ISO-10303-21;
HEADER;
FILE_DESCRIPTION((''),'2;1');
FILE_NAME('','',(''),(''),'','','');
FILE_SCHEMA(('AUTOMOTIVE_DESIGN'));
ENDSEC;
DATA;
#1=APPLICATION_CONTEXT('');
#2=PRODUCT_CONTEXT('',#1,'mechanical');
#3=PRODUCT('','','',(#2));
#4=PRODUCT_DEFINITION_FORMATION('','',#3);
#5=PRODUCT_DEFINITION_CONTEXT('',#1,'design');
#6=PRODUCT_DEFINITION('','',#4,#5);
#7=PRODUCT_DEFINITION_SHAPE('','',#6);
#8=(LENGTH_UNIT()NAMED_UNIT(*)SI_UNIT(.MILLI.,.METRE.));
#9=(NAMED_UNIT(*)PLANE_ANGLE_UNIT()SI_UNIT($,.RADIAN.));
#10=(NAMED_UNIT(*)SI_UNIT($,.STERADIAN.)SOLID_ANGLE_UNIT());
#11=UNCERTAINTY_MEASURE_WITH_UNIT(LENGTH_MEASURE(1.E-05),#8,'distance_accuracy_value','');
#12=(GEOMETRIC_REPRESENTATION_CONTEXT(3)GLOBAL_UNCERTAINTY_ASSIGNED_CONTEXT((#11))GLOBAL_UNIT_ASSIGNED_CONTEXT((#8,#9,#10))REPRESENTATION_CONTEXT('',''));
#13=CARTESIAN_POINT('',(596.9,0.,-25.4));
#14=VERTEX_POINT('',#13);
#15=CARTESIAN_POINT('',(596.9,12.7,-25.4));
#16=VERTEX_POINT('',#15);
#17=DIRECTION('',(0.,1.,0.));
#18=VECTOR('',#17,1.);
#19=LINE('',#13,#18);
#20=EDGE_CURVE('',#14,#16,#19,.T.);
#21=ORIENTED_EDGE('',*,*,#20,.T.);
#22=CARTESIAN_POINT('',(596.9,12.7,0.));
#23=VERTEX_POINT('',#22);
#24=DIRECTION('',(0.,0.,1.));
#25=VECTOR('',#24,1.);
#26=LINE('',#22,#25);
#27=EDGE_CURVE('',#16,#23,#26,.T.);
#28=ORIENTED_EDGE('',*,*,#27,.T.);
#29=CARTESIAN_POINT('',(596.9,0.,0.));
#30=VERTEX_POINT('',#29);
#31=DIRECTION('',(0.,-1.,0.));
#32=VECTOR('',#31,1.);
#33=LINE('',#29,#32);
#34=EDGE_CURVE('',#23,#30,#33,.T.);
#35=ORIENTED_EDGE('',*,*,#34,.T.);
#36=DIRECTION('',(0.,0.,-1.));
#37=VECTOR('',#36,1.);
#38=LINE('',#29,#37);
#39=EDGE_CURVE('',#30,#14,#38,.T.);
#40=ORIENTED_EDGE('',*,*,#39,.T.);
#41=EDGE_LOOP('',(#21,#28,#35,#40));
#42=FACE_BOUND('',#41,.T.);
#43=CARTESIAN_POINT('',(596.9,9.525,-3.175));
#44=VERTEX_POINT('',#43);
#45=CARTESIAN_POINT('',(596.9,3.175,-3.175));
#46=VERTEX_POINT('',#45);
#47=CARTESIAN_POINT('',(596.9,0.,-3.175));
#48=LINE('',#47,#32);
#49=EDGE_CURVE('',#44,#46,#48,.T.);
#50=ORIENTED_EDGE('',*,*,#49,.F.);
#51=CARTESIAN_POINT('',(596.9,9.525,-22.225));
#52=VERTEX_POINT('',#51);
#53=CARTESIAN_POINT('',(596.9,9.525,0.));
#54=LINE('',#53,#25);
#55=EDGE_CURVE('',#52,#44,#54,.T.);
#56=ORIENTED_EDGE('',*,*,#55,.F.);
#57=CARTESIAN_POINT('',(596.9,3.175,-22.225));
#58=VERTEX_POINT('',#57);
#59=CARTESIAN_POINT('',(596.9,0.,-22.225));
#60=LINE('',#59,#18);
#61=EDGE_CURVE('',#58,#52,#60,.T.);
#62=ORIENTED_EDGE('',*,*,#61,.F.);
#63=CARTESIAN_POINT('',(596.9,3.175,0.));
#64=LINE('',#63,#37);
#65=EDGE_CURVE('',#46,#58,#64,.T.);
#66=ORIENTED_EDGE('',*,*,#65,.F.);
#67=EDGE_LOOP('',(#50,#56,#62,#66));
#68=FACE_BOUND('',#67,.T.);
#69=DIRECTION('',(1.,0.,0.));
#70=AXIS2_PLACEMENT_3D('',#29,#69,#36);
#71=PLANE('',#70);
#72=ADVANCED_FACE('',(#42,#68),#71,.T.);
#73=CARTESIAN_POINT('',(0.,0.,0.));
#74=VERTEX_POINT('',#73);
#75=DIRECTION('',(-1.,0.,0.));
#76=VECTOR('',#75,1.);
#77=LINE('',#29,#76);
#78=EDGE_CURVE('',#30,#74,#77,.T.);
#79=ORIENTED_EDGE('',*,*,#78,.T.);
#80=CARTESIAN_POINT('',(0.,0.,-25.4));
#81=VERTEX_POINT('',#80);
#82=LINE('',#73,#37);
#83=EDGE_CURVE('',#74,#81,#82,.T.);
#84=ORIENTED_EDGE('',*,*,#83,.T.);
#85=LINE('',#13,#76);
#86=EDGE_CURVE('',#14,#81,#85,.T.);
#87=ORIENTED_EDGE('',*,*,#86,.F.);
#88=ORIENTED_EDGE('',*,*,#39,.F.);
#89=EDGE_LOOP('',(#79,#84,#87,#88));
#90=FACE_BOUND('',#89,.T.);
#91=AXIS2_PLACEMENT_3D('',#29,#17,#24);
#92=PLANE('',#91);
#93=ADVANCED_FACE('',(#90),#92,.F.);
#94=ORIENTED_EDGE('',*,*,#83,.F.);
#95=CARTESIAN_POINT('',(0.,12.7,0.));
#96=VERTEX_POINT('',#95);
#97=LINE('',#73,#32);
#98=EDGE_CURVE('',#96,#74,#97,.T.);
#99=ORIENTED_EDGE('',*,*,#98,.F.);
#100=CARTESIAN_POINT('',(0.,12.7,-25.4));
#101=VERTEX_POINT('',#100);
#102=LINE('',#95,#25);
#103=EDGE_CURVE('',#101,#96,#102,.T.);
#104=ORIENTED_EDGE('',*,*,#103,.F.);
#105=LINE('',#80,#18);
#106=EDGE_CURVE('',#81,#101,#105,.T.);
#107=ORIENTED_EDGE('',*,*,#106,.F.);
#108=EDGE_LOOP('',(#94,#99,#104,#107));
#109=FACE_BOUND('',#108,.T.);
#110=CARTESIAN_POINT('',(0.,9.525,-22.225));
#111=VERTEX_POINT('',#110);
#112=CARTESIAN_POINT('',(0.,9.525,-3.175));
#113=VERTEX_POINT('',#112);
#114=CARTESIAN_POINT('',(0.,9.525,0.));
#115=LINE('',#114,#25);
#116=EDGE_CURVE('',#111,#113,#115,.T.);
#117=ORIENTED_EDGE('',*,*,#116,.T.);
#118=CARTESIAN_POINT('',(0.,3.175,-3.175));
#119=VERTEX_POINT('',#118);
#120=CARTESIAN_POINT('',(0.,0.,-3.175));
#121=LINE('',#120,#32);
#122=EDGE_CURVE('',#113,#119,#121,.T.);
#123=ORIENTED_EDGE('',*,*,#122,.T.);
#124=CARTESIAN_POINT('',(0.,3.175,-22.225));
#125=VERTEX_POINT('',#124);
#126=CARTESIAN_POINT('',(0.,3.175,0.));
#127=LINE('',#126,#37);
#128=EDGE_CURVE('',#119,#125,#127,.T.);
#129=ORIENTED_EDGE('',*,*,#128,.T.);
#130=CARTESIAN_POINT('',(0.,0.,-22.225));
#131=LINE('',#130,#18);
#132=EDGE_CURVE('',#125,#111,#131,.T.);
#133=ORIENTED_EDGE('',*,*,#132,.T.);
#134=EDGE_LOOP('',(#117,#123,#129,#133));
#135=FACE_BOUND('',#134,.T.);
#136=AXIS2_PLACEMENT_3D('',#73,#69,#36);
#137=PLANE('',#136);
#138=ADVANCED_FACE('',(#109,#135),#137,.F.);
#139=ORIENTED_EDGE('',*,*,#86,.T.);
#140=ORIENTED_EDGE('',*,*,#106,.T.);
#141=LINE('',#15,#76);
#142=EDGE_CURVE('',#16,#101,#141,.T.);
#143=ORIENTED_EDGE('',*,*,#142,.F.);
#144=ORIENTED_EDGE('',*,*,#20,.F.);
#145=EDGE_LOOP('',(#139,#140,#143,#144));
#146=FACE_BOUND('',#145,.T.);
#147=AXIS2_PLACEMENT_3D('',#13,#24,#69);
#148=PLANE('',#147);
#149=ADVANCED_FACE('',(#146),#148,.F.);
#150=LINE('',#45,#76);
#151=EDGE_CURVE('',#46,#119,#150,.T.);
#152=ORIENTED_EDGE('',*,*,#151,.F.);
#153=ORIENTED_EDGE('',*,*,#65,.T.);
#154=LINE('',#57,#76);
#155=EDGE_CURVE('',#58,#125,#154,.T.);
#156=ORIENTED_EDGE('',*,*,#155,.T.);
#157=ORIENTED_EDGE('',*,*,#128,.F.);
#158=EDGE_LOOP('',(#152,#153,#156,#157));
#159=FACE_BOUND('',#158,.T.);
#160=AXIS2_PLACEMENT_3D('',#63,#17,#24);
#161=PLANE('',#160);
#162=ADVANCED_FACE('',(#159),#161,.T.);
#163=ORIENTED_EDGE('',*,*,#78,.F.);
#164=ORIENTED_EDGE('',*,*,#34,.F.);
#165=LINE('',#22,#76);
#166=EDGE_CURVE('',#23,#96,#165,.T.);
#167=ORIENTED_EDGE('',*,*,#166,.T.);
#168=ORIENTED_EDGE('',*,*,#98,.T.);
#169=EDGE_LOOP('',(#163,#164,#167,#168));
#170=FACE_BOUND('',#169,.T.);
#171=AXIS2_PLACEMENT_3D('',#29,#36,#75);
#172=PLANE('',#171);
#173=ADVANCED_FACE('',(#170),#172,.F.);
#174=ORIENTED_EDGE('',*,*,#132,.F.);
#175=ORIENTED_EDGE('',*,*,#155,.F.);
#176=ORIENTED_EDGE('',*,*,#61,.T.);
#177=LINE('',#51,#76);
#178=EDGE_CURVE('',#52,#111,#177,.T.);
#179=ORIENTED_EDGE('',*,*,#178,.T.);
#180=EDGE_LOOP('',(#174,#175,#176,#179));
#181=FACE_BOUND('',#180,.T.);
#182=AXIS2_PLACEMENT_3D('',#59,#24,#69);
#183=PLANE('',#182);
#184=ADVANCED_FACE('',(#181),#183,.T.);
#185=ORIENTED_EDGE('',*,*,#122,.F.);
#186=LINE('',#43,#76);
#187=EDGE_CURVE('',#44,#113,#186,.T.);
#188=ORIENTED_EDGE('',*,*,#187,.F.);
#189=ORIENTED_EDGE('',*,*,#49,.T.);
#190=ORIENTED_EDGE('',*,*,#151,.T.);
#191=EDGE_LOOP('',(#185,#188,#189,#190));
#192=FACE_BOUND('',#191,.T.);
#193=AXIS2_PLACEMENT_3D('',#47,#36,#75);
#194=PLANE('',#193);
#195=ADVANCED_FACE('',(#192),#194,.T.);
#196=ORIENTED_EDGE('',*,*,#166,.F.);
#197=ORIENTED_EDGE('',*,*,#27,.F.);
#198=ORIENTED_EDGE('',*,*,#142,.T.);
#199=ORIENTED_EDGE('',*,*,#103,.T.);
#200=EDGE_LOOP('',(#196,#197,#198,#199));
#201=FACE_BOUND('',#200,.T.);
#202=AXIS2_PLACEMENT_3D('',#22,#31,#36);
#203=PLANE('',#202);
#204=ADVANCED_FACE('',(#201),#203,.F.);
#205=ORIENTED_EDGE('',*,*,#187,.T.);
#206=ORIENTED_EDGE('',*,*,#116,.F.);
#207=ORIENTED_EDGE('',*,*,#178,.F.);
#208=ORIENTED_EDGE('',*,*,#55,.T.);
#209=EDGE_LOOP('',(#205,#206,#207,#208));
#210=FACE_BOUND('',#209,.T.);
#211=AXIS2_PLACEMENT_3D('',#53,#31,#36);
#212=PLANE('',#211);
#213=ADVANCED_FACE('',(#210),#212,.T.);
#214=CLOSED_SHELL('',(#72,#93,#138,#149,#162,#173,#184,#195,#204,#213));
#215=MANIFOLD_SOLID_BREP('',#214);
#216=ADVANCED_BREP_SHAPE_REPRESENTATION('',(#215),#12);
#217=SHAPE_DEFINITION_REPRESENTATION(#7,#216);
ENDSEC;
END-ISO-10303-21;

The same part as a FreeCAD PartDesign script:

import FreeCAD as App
import Part
import Sketcher
from FreeCAD import Vector
Q = App.Units.Quantity


def add_polygon(sketch, points):
    """Adds a closed chain of lines whose ends are joined by coincident constraints."""
    first, n = sketch.GeometryCount, len(points)
    for a, b in zip(points, points[1:] + points[:1]):
        sketch.addGeometry(Part.LineSegment(App.Vector(*a, 0), App.Vector(*b, 0)), False)
    for i in range(n):
        sketch.addConstraint(Sketcher.Constraint("Coincident", first + i, 2, first + (i + 1) % n, 1))

doc = App.newDocument("Part")
params = doc.addObject("Spreadsheet::Sheet", "Params")
for row, (alias, value) in enumerate([
    ("sketch1_height", "1 in"),
    ("sketch1_width", "0.5 in"),
    ("sketch1_width2", "0.25 in"),
    ("sketch1_height2", "0.75 in"),
    ("pad1_length", "23.5 in"),
], start=1):
    params.set(f"A{row}", alias)
    params.set(f"B{row}", "=" + value)
    params.setAlias(f"B{row}", alias)

body = doc.addObject("PartDesign::Body", "Body")

# Sketch on YZ plane
sketch1 = body.newObject("Sketcher::SketchObject", "Sketch")
sketch1.AttachmentSupport = (doc.getObject("YZ_Plane"), [""])
sketch1.MapMode = "FlatFace"
add_polygon(sketch1, [(13, 0), (0, 0), (0, -25), (13, -25)])  # lines 0-3
add_polygon(sketch1, [(3, -22), (3, -3), (10, -3), (10, -22)])  # lines 4-7
sketch1.addConstraint(Sketcher.Constraint("Horizontal", 0))
sketch1.addConstraint(Sketcher.Constraint("Vertical", 1))
sketch1.addConstraint(Sketcher.Constraint("Horizontal", 2))
sketch1.addConstraint(Sketcher.Constraint("Vertical", 3))
sketch1.addConstraint(Sketcher.Constraint("Vertical", 4))
sketch1.addConstraint(Sketcher.Constraint("Horizontal", 5))
sketch1.addConstraint(Sketcher.Constraint("Vertical", 6))
sketch1.addConstraint(Sketcher.Constraint("Horizontal", 7))
sketch1.addConstraint(Sketcher.Constraint("Coincident", 0, 2, -1, 1))
sketch1.addConstraint(Sketcher.Constraint("DistanceY", 1, 2, 1, 1, Q("1 in")))
sketch1.addConstraint(Sketcher.Constraint("DistanceX", 0, 2, 0, 1, Q("0.5 in")))
sketch1.addConstraint(Sketcher.Constraint("DistanceX", 5, 1, 5, 2, Q("0.25 in")))
sketch1.addConstraint(Sketcher.Constraint("DistanceY", 4, 1, 4, 2, Q("0.75 in")))
sketch1.addConstraint(Sketcher.Constraint("DistanceX", -1, 1, 4, 2, Q("0.125 in")))
sketch1.addConstraint(Sketcher.Constraint("DistanceY", 4, 2, -1, 1, Q("0.125 in")))
sketch1.setExpression("Constraints[17]", "Params.sketch1_height")
sketch1.setExpression("Constraints[18]", "Params.sketch1_width")
sketch1.setExpression("Constraints[19]", "Params.sketch1_width2")
sketch1.setExpression("Constraints[20]", "Params.sketch1_height2")
pad1 = body.newObject("PartDesign::Pad", "Pad")
pad1.Profile = sketch1
pad1.setExpression("Length", "Params.pad1_length")

doc.recompute()
